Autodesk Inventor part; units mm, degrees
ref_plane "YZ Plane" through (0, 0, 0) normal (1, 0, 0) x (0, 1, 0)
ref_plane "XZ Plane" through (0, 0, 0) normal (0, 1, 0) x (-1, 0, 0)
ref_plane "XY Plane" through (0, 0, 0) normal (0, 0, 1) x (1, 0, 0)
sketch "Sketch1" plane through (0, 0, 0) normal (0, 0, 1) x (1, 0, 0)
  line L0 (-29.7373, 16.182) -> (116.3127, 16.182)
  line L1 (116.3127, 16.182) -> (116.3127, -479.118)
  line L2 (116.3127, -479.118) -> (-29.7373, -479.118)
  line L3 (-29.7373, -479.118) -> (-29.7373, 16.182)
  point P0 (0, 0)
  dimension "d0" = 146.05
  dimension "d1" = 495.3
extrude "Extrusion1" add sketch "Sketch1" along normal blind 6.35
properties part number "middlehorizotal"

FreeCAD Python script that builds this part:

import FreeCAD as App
import Part
import Sketcher
Q = App.Units.Quantity


def add_polygon(sketch, points):
    """Adds a closed chain of lines whose ends are joined by coincident constraints."""
    first, n = sketch.GeometryCount, len(points)
    for a, b in zip(points, points[1:] + points[:1]):
        sketch.addGeometry(Part.LineSegment(App.Vector(*a, 0), App.Vector(*b, 0)), False)
    for i in range(n):
        sketch.addConstraint(Sketcher.Constraint("Coincident", first + i, 2, first + (i + 1) % n, 1))

doc = App.newDocument("Part")
params = doc.addObject("Spreadsheet::Sheet", "Params")
for row, (alias, value) in enumerate([
    ("sketch1_height", "19.5 in"),
    ("sketch1_width", "5.75 in"),
    ("pad1_length", "0.25 in"),
], start=1):
    params.set(f"A{row}", alias)
    params.set(f"B{row}", "=" + value)
    params.setAlias(f"B{row}", alias)

body = doc.addObject("PartDesign::Body", "Body")

sketch1 = body.newObject("Sketcher::SketchObject", "Sketch")
sketch1.AttachmentSupport = (doc.getObject("XY_Plane"), [""])
sketch1.MapMode = "FlatFace"
add_polygon(sketch1, [(116.3127, 16.182), (-29.7373, 16.182), (-29.7373, -479.118), (116.3127, -479.118)])
sketch1.addConstraint(Sketcher.Constraint("Horizontal", 0))
sketch1.addConstraint(Sketcher.Constraint("Vertical", 1))
sketch1.addConstraint(Sketcher.Constraint("Horizontal", 2))
sketch1.addConstraint(Sketcher.Constraint("Vertical", 3))
sketch1.addConstraint(Sketcher.Constraint("DistanceY", 1, 2, 1, 1, Q("19.5 in")))
sketch1.addConstraint(Sketcher.Constraint("DistanceX", 0, 2, 0, 1, Q("5.75 in")))
sketch1.addConstraint(Sketcher.Constraint("DistanceX", 0, 2, -1, 1, 29.7373))
sketch1.addConstraint(Sketcher.Constraint("DistanceY", -1, 1, 0, 2, 16.182))
sketch1.setExpression("Constraints[8]", "Params.sketch1_height")
sketch1.setExpression("Constraints[9]", "Params.sketch1_width")
pad1 = body.newObject("PartDesign::Pad", "Pad")
pad1.Profile = sketch1
pad1.setExpression("Length", "Params.pad1_length")

doc.recompute()
